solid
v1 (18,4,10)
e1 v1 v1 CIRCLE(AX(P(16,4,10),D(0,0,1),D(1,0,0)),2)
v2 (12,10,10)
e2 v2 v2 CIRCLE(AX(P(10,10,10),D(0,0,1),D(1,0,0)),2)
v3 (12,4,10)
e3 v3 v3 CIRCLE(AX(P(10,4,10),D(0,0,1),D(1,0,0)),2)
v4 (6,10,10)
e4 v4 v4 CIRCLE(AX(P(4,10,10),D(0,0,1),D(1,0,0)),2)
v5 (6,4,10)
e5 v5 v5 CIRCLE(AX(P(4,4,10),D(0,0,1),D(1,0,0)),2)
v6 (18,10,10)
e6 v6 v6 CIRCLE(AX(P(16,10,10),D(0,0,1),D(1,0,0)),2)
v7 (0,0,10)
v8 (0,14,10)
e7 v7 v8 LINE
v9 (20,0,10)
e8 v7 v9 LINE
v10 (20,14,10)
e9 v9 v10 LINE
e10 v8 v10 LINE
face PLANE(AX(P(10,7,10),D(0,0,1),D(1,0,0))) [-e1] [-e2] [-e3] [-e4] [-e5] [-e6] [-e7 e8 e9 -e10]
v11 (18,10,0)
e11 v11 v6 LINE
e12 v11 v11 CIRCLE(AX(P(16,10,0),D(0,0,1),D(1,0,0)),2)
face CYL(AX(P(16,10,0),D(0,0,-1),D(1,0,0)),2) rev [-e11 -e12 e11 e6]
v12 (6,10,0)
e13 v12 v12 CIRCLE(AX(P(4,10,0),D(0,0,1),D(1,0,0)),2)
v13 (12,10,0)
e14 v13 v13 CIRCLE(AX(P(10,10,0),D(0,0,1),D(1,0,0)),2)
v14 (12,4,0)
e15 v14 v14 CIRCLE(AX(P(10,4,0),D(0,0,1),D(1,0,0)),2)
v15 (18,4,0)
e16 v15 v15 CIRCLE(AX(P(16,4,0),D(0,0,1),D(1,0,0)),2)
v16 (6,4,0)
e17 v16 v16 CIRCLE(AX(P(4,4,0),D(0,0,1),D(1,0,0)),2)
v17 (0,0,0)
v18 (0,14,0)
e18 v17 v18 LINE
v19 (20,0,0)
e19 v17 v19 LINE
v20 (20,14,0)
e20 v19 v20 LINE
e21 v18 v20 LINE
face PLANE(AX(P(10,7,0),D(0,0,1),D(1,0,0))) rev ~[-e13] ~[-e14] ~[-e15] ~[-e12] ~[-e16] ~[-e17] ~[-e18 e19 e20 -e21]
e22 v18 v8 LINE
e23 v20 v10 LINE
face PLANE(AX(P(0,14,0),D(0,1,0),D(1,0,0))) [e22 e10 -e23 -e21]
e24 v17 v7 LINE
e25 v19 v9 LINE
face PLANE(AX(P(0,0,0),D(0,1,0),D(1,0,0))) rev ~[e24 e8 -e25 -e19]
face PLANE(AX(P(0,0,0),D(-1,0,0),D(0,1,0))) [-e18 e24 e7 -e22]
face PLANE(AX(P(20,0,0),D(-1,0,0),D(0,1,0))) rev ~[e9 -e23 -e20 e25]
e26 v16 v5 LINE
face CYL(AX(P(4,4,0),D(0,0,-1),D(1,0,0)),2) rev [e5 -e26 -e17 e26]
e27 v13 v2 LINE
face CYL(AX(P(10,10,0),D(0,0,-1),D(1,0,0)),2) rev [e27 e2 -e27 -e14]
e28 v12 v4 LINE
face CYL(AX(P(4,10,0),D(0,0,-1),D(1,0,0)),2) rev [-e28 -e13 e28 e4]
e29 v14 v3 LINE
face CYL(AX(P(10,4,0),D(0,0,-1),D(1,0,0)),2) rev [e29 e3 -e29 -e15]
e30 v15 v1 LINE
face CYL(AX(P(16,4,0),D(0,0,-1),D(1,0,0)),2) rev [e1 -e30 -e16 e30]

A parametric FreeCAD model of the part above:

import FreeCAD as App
import Part
import Sketcher
from FreeCAD import Vector
Q = App.Units.Quantity


def add_polygon(sketch, points):
    """Adds a closed chain of lines whose ends are joined by coincident constraints."""
    first, n = sketch.GeometryCount, len(points)
    for a, b in zip(points, points[1:] + points[:1]):
        sketch.addGeometry(Part.LineSegment(App.Vector(*a, 0), App.Vector(*b, 0)), False)
    for i in range(n):
        sketch.addConstraint(Sketcher.Constraint("Coincident", first + i, 2, first + (i + 1) % n, 1))

doc = App.newDocument("Part")
body = doc.addObject("PartDesign::Body", "Body")

sketch1 = doc.addObject("Sketcher::SketchObject", "Sketch")
body.addObject(sketch1)
sketch1.AttachmentSupport = (doc.XY_Plane, [""])
sketch1.MapMode = "FlatFace"
sketch1.addGeometry(Part.Circle(Vector(16, 10, 0), Vector(0, 0, 1), 2), False)
sketch1.addConstraint(Sketcher.Constraint("Diameter", 0, Q("4 mm")))
sketch1.addConstraint(Sketcher.Constraint("DistanceX", -1, 1, 0, 3, Q("16 mm")))
sketch1.addConstraint(Sketcher.Constraint("DistanceY", -1, 1, 0, 3, Q("10 mm")))
pad1 = doc.addObject("PartDesign::Pad", "Pad")
body.addObject(pad1)
pad1.Profile = sketch1
pad1.Length = 10
body2 = doc.addObject("PartDesign::Body", "Body001")

sketch2 = doc.addObject("Sketcher::SketchObject", "Sketch001")
body2.addObject(sketch2)
sketch2.AttachmentSupport = (doc.getObject("XY_Plane001"), [""])
sketch2.MapMode = "FlatFace"
sketch2.addGeometry(Part.Circle(Vector(16, 4, 0), Vector(0, 0, 1), 2), False)
sketch2.addConstraint(Sketcher.Constraint("Diameter", 0, Q("4 mm")))
sketch2.addConstraint(Sketcher.Constraint("DistanceX", -1, 1, 0, 3, Q("16 mm")))
sketch2.addConstraint(Sketcher.Constraint("DistanceY", -1, 1, 0, 3, Q("4 mm")))
pad2 = doc.addObject("PartDesign::Pad", "Pad001")
body2.addObject(pad2)
pad2.Profile = sketch2
pad2.Length = 10
body3 = doc.addObject("PartDesign::Body", "Body002")

sketch3 = doc.addObject("Sketcher::SketchObject", "Sketch002")
body3.addObject(sketch3)
sketch3.AttachmentSupport = (doc.getObject("XY_Plane002"), [""])
sketch3.MapMode = "FlatFace"
sketch3.addGeometry(Part.Circle(Vector(10, 10, 0), Vector(0, 0, 1), 2), False)
sketch3.addConstraint(Sketcher.Constraint("Diameter", 0, Q("4 mm")))
sketch3.addConstraint(Sketcher.Constraint("DistanceX", -1, 1, 0, 3, Q("10 mm")))
sketch3.addConstraint(Sketcher.Constraint("DistanceY", -1, 1, 0, 3, Q("10 mm")))
pad3 = doc.addObject("PartDesign::Pad", "Pad002")
body3.addObject(pad3)
pad3.Profile = sketch3
pad3.Length = 10
body4 = doc.addObject("PartDesign::Body", "Body003")

sketch4 = doc.addObject("Sketcher::SketchObject", "Sketch003")
body4.addObject(sketch4)
sketch4.AttachmentSupport = (doc.getObject("XY_Plane003"), [""])
sketch4.MapMode = "FlatFace"
sketch4.addGeometry(Part.Circle(Vector(10, 4, 0), Vector(0, 0, 1), 2), False)
sketch4.addConstraint(Sketcher.Constraint("Diameter", 0, Q("4 mm")))
sketch4.addConstraint(Sketcher.Constraint("DistanceX", -1, 1, 0, 3, Q("10 mm")))
sketch4.addConstraint(Sketcher.Constraint("DistanceY", -1, 1, 0, 3, Q("4 mm")))
pad4 = doc.addObject("PartDesign::Pad", "Pad003")
body4.addObject(pad4)
pad4.Profile = sketch4
pad4.Length = 10
body5 = doc.addObject("PartDesign::Body", "Body004")

sketch5 = doc.addObject("Sketcher::SketchObject", "Sketch004")
body5.addObject(sketch5)
sketch5.AttachmentSupport = (doc.getObject("XY_Plane004"), [""])
sketch5.MapMode = "FlatFace"
sketch5.addGeometry(Part.Circle(Vector(4, 10, 0), Vector(0, 0, 1), 2), False)
sketch5.addConstraint(Sketcher.Constraint("Diameter", 0, Q("4 mm")))
sketch5.addConstraint(Sketcher.Constraint("DistanceX", -1, 1, 0, 3, Q("4 mm")))
sketch5.addConstraint(Sketcher.Constraint("DistanceY", -1, 1, 0, 3, Q("10 mm")))
pad5 = doc.addObject("PartDesign::Pad", "Pad004")
body5.addObject(pad5)
pad5.Profile = sketch5
pad5.Length = 10
body6 = doc.addObject("PartDesign::Body", "Body005")

sketch6 = doc.addObject("Sketcher::SketchObject", "Sketch005")
body6.addObject(sketch6)
sketch6.AttachmentSupport = (doc.getObject("XY_Plane005"), [""])
sketch6.MapMode = "FlatFace"
sketch6.addGeometry(Part.Circle(Vector(4, 4, 0), Vector(0, 0, 1), 2), False)
sketch6.addConstraint(Sketcher.Constraint("Diameter", 0, Q("4 mm")))
sketch6.addConstraint(Sketcher.Constraint("DistanceX", -1, 1, 0, 3, Q("4 mm")))
sketch6.addConstraint(Sketcher.Constraint("DistanceY", -1, 1, 0, 3, Q("4 mm")))
pad6 = doc.addObject("PartDesign::Pad", "Pad005")
body6.addObject(pad6)
pad6.Profile = sketch6
pad6.Length = 10
body7 = doc.addObject("PartDesign::Body", "Body006")

sketch7 = doc.addObject("Sketcher::SketchObject", "Sketch006")
body7.addObject(sketch7)
sketch7.AttachmentSupport = (doc.getObject("XY_Plane006"), [""])
sketch7.MapMode = "FlatFace"
add_polygon(sketch7, [(0, 14), (0, 0), (20, 0), (20, 14)])
sketch7.addConstraint(Sketcher.Constraint("Vertical", 0))
sketch7.addConstraint(Sketcher.Constraint("Horizontal", 1))
sketch7.addConstraint(Sketcher.Constraint("Vertical", 2))
sketch7.addConstraint(Sketcher.Constraint("Horizontal", 3))
sketch7.addConstraint(Sketcher.Constraint("Coincident", 0, 2, -1, 1))
sketch7.addConstraint(Sketcher.Constraint("DistanceX", 1, 1, 1, 2, Q("20 mm")))
sketch7.addConstraint(Sketcher.Constraint("DistanceY", 0, 2, 0, 1, Q("14 mm")))
pad7 = doc.addObject("PartDesign::Pad", "Pad006")
body7.addObject(pad7)
pad7.Profile = sketch7
pad7.Length = 10
doc.recompute()

boolean = doc.addObject("PartDesign::Boolean", "Boolean")
body7.addObject(boolean)
boolean.Type = "Cut"
boolean.addObjects([body6])
doc.recompute()

boolean2 = doc.addObject("PartDesign::Boolean", "Boolean001")
body7.addObject(boolean2)
boolean2.Type = "Cut"
boolean2.addObjects([body5])
doc.recompute()

boolean3 = doc.addObject("PartDesign::Boolean", "Boolean002")
body7.addObject(boolean3)
boolean3.Type = "Cut"
boolean3.addObjects([body4])
doc.recompute()

boolean4 = doc.addObject("PartDesign::Boolean", "Boolean003")
body7.addObject(boolean4)
boolean4.Type = "Cut"
boolean4.addObjects([body3])
doc.recompute()

boolean5 = doc.addObject("PartDesign::Boolean", "Boolean004")
body7.addObject(boolean5)
boolean5.Type = "Cut"
boolean5.addObjects([body2])
doc.recompute()

boolean6 = doc.addObject("PartDesign::Boolean", "Boolean005")
body7.addObject(boolean6)
boolean6.Type = "Cut"
boolean6.addObjects([body])

doc.recompute()
